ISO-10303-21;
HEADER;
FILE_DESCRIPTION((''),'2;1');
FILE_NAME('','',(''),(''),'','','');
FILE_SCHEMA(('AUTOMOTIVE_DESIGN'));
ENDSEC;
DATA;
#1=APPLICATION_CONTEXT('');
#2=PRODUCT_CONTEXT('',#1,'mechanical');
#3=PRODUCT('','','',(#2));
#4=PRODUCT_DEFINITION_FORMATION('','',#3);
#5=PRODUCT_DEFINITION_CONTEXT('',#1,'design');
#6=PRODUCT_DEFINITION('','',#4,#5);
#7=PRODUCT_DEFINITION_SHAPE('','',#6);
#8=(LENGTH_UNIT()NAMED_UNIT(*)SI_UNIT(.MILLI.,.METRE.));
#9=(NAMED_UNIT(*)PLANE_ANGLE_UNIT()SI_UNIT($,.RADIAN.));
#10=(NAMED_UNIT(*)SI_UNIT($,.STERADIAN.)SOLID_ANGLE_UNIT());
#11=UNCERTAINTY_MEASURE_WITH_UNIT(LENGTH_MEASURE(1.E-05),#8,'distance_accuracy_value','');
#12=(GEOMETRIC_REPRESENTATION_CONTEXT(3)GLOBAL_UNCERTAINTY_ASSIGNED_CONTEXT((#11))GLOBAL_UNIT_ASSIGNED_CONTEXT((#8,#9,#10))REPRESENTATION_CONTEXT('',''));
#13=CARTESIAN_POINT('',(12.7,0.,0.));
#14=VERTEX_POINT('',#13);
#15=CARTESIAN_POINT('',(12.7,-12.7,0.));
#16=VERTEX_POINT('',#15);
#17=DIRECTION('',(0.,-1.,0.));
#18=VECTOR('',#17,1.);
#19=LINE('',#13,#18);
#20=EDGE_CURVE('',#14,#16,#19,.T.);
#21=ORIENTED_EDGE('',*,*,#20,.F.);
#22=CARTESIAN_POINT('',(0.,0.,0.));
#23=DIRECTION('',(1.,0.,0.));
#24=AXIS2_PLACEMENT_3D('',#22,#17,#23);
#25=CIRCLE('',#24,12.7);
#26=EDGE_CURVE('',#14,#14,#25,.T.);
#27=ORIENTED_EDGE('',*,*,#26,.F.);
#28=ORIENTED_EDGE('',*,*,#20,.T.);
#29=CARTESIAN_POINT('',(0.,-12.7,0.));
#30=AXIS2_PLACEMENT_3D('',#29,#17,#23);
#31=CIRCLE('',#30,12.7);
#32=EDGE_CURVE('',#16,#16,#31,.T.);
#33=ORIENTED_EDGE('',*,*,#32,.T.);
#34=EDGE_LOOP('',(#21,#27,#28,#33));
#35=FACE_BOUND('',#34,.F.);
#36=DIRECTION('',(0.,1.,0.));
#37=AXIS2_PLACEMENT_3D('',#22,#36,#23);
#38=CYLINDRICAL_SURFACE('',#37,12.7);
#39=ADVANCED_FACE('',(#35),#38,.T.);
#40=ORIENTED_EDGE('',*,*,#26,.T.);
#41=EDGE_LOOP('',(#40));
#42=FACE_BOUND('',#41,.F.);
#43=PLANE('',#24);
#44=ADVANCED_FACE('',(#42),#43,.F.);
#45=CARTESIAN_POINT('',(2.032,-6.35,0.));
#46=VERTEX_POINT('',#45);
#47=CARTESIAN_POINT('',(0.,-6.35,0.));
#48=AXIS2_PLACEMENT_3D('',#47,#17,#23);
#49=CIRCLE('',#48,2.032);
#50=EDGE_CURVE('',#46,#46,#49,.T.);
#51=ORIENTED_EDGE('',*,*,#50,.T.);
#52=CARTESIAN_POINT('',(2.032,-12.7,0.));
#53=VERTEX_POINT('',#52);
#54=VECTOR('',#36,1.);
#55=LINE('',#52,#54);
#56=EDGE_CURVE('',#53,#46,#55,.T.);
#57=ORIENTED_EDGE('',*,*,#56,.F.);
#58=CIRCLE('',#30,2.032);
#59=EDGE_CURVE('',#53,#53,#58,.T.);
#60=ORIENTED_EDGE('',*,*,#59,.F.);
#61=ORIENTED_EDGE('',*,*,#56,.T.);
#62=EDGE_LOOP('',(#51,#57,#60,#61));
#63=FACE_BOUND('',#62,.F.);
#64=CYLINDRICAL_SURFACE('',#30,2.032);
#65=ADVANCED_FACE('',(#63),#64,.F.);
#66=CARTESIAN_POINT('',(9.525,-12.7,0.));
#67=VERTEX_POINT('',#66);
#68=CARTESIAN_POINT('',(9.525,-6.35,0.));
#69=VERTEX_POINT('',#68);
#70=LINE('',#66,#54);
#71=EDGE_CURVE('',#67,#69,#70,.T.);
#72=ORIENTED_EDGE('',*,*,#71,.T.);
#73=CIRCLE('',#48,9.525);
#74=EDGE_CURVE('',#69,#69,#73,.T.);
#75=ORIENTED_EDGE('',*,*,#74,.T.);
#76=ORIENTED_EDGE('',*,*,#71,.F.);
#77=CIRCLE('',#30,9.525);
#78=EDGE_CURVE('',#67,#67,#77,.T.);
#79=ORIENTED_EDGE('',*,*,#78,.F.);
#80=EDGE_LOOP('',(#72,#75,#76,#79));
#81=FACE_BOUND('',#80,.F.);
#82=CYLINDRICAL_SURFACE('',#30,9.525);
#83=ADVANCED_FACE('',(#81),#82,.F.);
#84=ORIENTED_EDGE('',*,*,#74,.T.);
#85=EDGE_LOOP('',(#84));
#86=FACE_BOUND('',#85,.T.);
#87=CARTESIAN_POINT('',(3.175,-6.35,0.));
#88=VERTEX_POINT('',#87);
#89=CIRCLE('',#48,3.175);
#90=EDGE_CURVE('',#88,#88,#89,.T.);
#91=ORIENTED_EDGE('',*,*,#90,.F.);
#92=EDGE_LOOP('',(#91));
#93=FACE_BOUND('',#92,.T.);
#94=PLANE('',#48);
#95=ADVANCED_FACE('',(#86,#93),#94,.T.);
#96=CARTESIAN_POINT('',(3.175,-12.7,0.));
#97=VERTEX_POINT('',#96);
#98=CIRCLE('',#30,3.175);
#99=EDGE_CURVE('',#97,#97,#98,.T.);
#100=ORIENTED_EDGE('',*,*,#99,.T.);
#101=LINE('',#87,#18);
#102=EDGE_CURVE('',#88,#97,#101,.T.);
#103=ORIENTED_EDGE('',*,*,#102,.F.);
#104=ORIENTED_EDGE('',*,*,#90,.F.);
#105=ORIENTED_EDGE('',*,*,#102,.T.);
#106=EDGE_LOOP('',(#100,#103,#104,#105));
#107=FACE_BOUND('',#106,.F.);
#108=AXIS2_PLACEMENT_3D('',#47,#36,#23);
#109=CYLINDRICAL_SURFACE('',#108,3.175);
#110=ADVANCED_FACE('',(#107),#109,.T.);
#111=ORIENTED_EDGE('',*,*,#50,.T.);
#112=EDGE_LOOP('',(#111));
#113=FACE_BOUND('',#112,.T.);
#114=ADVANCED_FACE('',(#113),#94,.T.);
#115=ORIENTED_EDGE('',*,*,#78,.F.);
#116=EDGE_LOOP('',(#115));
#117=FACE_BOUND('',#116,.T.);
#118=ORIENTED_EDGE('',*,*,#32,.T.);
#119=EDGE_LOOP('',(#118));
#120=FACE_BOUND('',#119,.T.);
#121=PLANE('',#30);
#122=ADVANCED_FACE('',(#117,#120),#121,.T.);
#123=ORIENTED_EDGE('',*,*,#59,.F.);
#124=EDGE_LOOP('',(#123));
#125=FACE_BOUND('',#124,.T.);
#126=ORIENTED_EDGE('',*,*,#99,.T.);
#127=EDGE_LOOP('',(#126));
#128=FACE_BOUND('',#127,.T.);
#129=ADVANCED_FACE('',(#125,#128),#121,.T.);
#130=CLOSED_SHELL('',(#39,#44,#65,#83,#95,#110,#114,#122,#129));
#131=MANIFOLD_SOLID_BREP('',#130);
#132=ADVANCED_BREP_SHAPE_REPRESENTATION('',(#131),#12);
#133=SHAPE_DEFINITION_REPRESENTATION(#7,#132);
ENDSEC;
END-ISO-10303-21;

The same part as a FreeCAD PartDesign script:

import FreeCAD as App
import Part
import Sketcher
from FreeCAD import Vector
Q = App.Units.Quantity

doc = App.newDocument("Part")
body = doc.addObject("PartDesign::Body", "Body")

# Sketch on XZ plane
sketch1 = doc.addObject("Sketcher::SketchObject", "Sketch")
body.addObject(sketch1)
sketch1.AttachmentSupport = (doc.XZ_Plane, [""])
sketch1.MapMode = "FlatFace"
sketch1.addGeometry(Part.Circle(Vector(0, 0, 0), Vector(0, 0, 1), 13), False)
sketch1.addConstraint(Sketcher.Constraint("Coincident", 0, 3, -1, 1))
sketch1.addConstraint(Sketcher.Constraint("Diameter", 0, Q("1 in")))
pad1 = doc.addObject("PartDesign::Pad", "Pad")
body.addObject(pad1)
pad1.Profile = sketch1
pad1.Length = Q("0.5 in")

# Sketch on XZ plane
sketch2 = doc.addObject("Sketcher::SketchObject", "Sketch001")
body.addObject(sketch2)
sketch2.AttachmentSupport = (doc.XZ_Plane, [""])
sketch2.MapMode = "FlatFace"
sketch2.AttachmentOffset = App.Placement(Vector(0, 0, 0.5 * 25.4), App.Rotation())
sketch2.addGeometry(Part.Circle(Vector(0, 0, 0), Vector(0, 0, 1), 10), False)
sketch2.addConstraint(Sketcher.Constraint("Coincident", 0, 3, -1, 1))
sketch2.addConstraint(Sketcher.Constraint("Diameter", 0, Q("0.75 in")))
pocket1 = doc.addObject("PartDesign::Pocket", "Pocket")
body.addObject(pocket1)
pocket1.Profile = sketch2
pocket1.Length = Q("0.25 in")

# Sketch on XZ plane
sketch3 = doc.addObject("Sketcher::SketchObject", "Sketch002")
body.addObject(sketch3)
sketch3.AttachmentSupport = (doc.XZ_Plane, [""])
sketch3.MapMode = "FlatFace"
sketch3.AttachmentOffset = App.Placement(Vector(0, 0, 0.25 * 25.4), App.Rotation())
sketch3.addGeometry(Part.Circle(Vector(0, 0, 0), Vector(0, 0, 1), 3.2), False)
sketch3.addConstraint(Sketcher.Constraint("Coincident", 0, 3, -1, 1))
sketch3.addConstraint(Sketcher.Constraint("Diameter", 0, Q("0.25 in")))
pad2 = doc.addObject("PartDesign::Pad", "Pad001")
body.addObject(pad2)
pad2.Profile = sketch3
pad2.Length = Q("0.25 in")

# Sketch on XZ plane
sketch4 = doc.addObject("Sketcher::SketchObject", "Sketch003")
body.addObject(sketch4)
sketch4.AttachmentSupport = (doc.XZ_Plane, [""])
sketch4.MapMode = "FlatFace"
sketch4.AttachmentOffset = App.Placement(Vector(0, 0, 0.5 * 25.4), App.Rotation())
sketch4.addGeometry(Part.Circle(Vector(0, 0, 0), Vector(0, 0, 1), 2), False)
sketch4.addConstraint(Sketcher.Constraint("Coincident", 0, 3, -1, 1))
sketch4.addConstraint(Sketcher.Constraint("Diameter", 0, Q("0.16 in")))
pocket2 = doc.addObject("PartDesign::Pocket", "Pocket001")
body.addObject(pocket2)
pocket2.Profile = sketch4
pocket2.Length = Q("0.25 in")

doc.recompute()
